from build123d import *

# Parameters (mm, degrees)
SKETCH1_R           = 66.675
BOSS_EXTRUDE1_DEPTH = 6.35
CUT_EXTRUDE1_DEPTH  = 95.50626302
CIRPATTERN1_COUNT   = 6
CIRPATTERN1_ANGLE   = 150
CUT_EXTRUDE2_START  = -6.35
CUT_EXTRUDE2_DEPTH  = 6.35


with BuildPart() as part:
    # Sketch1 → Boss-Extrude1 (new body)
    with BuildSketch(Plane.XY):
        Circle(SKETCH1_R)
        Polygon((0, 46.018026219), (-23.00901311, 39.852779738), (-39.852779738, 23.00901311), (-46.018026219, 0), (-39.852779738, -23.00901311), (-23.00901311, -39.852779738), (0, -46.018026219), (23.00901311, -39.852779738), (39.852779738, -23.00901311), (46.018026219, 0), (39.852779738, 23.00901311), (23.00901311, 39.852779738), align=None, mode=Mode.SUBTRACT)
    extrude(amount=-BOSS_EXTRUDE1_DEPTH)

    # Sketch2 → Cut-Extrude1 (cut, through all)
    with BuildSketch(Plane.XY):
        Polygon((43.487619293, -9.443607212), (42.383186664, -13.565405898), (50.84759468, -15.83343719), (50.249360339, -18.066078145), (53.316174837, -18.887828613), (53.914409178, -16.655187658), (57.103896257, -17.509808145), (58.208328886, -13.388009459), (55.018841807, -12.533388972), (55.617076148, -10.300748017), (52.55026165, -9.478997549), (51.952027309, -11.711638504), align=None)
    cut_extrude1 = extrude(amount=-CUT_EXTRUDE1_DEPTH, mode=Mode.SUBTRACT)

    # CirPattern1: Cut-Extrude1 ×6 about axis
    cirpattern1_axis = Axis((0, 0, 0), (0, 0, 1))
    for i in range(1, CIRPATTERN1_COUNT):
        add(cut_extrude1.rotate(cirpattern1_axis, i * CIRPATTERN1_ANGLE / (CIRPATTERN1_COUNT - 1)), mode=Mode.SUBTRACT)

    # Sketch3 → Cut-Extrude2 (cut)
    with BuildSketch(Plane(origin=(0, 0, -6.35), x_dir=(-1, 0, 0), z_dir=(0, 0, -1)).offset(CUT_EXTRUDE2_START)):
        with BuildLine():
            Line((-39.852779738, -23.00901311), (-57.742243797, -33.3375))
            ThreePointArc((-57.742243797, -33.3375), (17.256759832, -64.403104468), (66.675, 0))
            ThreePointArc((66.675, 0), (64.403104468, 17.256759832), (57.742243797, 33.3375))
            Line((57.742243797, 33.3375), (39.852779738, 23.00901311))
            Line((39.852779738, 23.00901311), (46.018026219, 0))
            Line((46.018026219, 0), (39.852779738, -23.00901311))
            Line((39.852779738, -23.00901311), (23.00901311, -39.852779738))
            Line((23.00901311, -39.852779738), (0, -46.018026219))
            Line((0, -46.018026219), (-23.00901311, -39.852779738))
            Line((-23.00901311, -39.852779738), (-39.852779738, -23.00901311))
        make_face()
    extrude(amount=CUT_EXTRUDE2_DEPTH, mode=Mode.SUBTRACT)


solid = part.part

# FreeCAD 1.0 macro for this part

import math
import FreeCAD as App
import Part
import Sketcher

V = App.Vector
Q = App.Units.Quantity


def add_polygon(sketch, points):
    """Adds a closed chain of lines whose ends are joined by coincident constraints."""
    first, n = sketch.GeometryCount, len(points)
    for a, b in zip(points, points[1:] + points[:1]):
        sketch.addGeometry(Part.LineSegment(App.Vector(*a, 0), App.Vector(*b, 0)), False)
    for i in range(n):
        sketch.addConstraint(Sketcher.Constraint("Coincident", first + i, 2, first + (i + 1) % n, 1))

doc = App.newDocument("Part")
body = doc.addObject("PartDesign::Body", "Body")

# Sketch on XY plane
sketch1 = doc.addObject("Sketcher::SketchObject", "Sketch")
body.addObject(sketch1)
sketch1.AttachmentSupport = (doc.XY_Plane, [""])
sketch1.MapMode = "FlatFace"
sketch1.addGeometry(Part.Circle(V(0, 0, 0), V(0, 0, 1), 67), False)  # 0
add_polygon(sketch1, [(-23, 40), (0, 46), (23, 40), (40, 23), (46, 0), (40, -23), (23, -40), (0, -46), (-23, -40), (-40, -23), (-46, 0), (-40, 23)])  # lines 1-12
sketch1.addConstraint([
    Sketcher.Constraint("Coincident", 0, 3, -1, 1),
    Sketcher.Constraint("Symmetric", 1, 2, 7, 2, -1, 1),
    Sketcher.Constraint("Symmetric", 2, 2, 8, 2, -1, 1),
    Sketcher.Constraint("Symmetric", 3, 2, 9, 2, -1, 1),
    Sketcher.Constraint("Symmetric", 4, 2, 10, 2, -1, 1),
    Sketcher.Constraint("Symmetric", 5, 2, 11, 2, -1, 1),
    Sketcher.Constraint("Symmetric", 6, 2, 12, 2, -1, 1),
    Sketcher.Constraint("Symmetric", 6, 2, 8, 2, -2),
    Sketcher.Constraint("Symmetric", 5, 2, 9, 2, -2),
    Sketcher.Constraint("PointOnObject", 1, 2, -2),
    Sketcher.Constraint("PointOnObject", 4, 2, -1),
    Sketcher.Constraint("Perpendicular", 1, 4),
    Sketcher.Constraint("Perpendicular", 3, 6),
    Sketcher.Constraint("Equal", 2, 3),
    Sketcher.Constraint("Equal", 3, 4),
    Sketcher.Constraint("Diameter", 0, Q("5.25 in")),
    Sketcher.Constraint("Angle", 1, Q("15 deg")),
    Sketcher.Constraint("DistanceY", 5, 2, 1, 2, Q("2.7176 in")),
])
pad1 = doc.addObject("PartDesign::Pad", "Pad")
body.addObject(pad1)
pad1.Profile = sketch1
pad1.Length = Q("0.25 in")
pad1.Reversed = True

# Sketch on XY plane
sketch2 = doc.addObject("Sketcher::SketchObject", "Sketch001")
body.addObject(sketch2)
sketch2.AttachmentSupport = (doc.XY_Plane, [""])
sketch2.MapMode = "FlatFace"
add_polygon(sketch2, [(43.5, -9.4), (42.4, -13.6), (50.8, -15.8), (50.2, -18.1), (53.3, -18.9), (53.9, -16.7), (57.1, -17.5), (58.2, -13.4), (55, -12.5), (55.6, -10.3), (52.6, -9.5), (52, -11.7)])  # lines 0-11
sketch2.addConstraint([
    Sketcher.Constraint("Perpendicular", 0, 1),
    Sketcher.Constraint("Perpendicular", 1, 2),
    Sketcher.Constraint("Perpendicular", 2, 3),
    Sketcher.Constraint("Perpendicular", 3, 4),
    Sketcher.Constraint("Perpendicular", 4, 5),
    Sketcher.Constraint("Perpendicular", 5, 6),
    Sketcher.Constraint("Perpendicular", 6, 7),
    Sketcher.Constraint("Perpendicular", 7, 8),
    Sketcher.Constraint("Perpendicular", 8, 9),
    Sketcher.Constraint("Perpendicular", 9, 10),
    Sketcher.Constraint("Perpendicular", 10, 11),
    Sketcher.Constraint("Equal", 2, 4),
    Sketcher.Constraint("Equal", 0, 6),
    Sketcher.Constraint("Equal", 5, 7),
    Sketcher.Constraint("Equal", 4, 8),
    Sketcher.Constraint("Equal", 3, 9),
    Sketcher.Constraint("Angle", 0, Q("-105 deg")),
    Sketcher.Constraint("Distance", 5, Q("0.13 in")),
    Sketcher.Constraint("Distance", 0, Q("0.168 in")),
    Sketcher.Constraint("Distance", 1, Q("0.345 in")),
    Sketcher.Constraint("Distance", 2, Q("0.091 in")),
    Sketcher.Constraint("Distance", 3, Q("0.125 in")),
    Sketcher.Constraint("DistanceX", -1, 1, 2, 2, Q("50.24936 mm")),
    Sketcher.Constraint("DistanceY", 2, 2, -1, 1, Q("18.066078 mm")),
])
pocket1 = doc.addObject("PartDesign::Pocket", "Pocket")
body.addObject(pocket1)
pocket1.Profile = sketch2
pocket1.Type = "ThroughAll"
doc.recompute()

polarpattern = doc.addObject("PartDesign::PolarPattern", "PolarPattern")
body.addObject(polarpattern)
polarpattern.Originals = [pocket1]
polarpattern.Axis = (doc.Z_Axis, [""])
polarpattern.Angle = 150
polarpattern.Occurrences = 6
body.Tip = polarpattern

# Sketch on XY plane
sketch3 = doc.addObject("Sketcher::SketchObject", "Sketch002")
body.addObject(sketch3)
sketch3.AttachmentSupport = (doc.XY_Plane, [""])
sketch3.MapMode = "FlatFace"
sketch3.addGeometry([
    Part.LineSegment(V(40, -23, 0), V(58, -33, 0)),  # 0
    Part.ArcOfCircle(Part.Circle(V(0, 0, 0), V(0, 0, 1), 67), math.radians(180), math.radians(330)),  # 1
    Part.ArcOfCircle(Part.Circle(V(0, 0, 0), V(0, 0, 1), 67), math.radians(150), math.radians(180)),  # 2
    Part.LineSegment(V(-58, 33, 0), V(-40, 23, 0)),  # 3
    Part.LineSegment(V(-40, 23, 0), V(-46, 0, 0)),  # 4
    Part.LineSegment(V(-46, 0, 0), V(-40, -23, 0)),  # 5
    Part.LineSegment(V(-40, -23, 0), V(-23, -40, 0)),  # 6
    Part.LineSegment(V(-23, -40, 0), V(0, -46, 0)),  # 7
    Part.LineSegment(V(0, -46, 0), V(23, -40, 0)),  # 8
    Part.LineSegment(V(23, -40, 0), V(40, -23, 0)),  # 9
], False)
sketch3.addConstraint([
    Sketcher.Constraint("Coincident", 0, 2, 1, 2),
    Sketcher.Constraint("Tangent", 1, 1, 2, 2),
    Sketcher.Constraint("Coincident", 2, 1, 3, 1),
    Sketcher.Constraint("Coincident", 3, 2, 4, 1),
    Sketcher.Constraint("Coincident", 4, 2, 5, 1),
    Sketcher.Constraint("Coincident", 5, 2, 6, 1),
    Sketcher.Constraint("Coincident", 6, 2, 7, 1),
    Sketcher.Constraint("Coincident", 7, 2, 8, 1),
    Sketcher.Constraint("Coincident", 8, 2, 9, 1),
    Sketcher.Constraint("Coincident", 9, 2, 0, 1),
    Sketcher.Constraint("Coincident", 1, 3, -1, 1),
    Sketcher.Constraint("Equal", 1, 2),
    Sketcher.Constraint("Symmetric", 3, 2, 9, 2, -1, 1),
    Sketcher.Constraint("Symmetric", 6, 2, 8, 2, -2),
    Sketcher.Constraint("Symmetric", 5, 2, 9, 2, -2),
    Sketcher.Constraint("PointOnObject", 1, 1, -1),
    Sketcher.Constraint("PointOnObject", 4, 2, -1),
    Sketcher.Constraint("PointOnObject", 7, 2, -2),
    Sketcher.Constraint("Parallel", 0, 3),
    Sketcher.Constraint("Perpendicular", 4, 7),
    Sketcher.Constraint("Perpendicular", 6, 9),
    Sketcher.Constraint("Equal", 5, 6),
    Sketcher.Constraint("Equal", 6, 7),
    Sketcher.Constraint("Angle", 0, Q("-30 deg")),
    Sketcher.Constraint("Angle", 4, Q("-105 deg")),
    Sketcher.Constraint("Radius", 1, Q("2.625 in")),
    Sketcher.Constraint("DistanceX", 3, 2, -1, 1, Q("39.85278 mm")),
])
pocket2 = doc.addObject("PartDesign::Pocket", "Pocket001")
body.addObject(pocket2)
pocket2.Profile = sketch3
pocket2.Length = Q("0.25 in")

doc.recompute()
